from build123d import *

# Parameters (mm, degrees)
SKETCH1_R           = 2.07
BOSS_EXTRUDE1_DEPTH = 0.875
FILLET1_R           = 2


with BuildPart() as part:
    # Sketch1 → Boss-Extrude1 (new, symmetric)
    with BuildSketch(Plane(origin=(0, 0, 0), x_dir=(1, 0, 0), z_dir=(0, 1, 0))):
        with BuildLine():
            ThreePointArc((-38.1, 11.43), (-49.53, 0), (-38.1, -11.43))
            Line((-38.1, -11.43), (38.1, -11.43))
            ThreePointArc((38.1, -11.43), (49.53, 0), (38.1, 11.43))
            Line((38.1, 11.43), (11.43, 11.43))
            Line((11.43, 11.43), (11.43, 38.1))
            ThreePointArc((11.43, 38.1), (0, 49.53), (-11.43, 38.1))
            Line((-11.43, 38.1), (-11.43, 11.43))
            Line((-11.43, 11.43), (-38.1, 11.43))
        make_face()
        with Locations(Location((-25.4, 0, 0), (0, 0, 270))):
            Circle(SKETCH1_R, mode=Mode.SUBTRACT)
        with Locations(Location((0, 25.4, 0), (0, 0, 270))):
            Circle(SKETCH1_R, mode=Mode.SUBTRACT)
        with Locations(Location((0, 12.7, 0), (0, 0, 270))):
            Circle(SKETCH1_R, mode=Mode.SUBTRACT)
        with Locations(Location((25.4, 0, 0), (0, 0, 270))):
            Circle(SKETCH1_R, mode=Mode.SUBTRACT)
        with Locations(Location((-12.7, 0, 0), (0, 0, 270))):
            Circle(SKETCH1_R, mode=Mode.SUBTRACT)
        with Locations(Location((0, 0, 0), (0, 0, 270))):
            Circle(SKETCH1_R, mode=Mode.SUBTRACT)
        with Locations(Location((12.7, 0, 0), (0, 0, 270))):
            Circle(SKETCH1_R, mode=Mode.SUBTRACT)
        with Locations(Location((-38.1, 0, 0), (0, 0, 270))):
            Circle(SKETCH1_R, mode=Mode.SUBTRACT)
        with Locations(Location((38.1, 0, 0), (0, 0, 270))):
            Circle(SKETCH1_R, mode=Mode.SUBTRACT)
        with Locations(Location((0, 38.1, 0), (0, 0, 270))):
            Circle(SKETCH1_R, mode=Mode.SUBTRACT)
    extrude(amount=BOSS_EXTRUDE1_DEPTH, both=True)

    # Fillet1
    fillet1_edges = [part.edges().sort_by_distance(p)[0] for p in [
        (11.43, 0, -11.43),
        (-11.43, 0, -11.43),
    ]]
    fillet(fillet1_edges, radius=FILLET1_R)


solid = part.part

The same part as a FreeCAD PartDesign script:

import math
import FreeCAD as App
import Part
import Sketcher
from FreeCAD import Vector
Q = App.Units.Quantity


def edges_at(feature, points):
    """Names of the edges that pass closest to the given points."""
    edges = feature.Shape.Edges
    near = lambda p: min(range(len(edges)), key=lambda i: edges[i].distToShape(Part.Vertex(*p))[0])
    return sorted({f"Edge{near(p) + 1}" for p in points})

doc = App.newDocument("Part")
body = doc.addObject("PartDesign::Body", "Body")

# Sketch on XZ plane
sketch1 = doc.addObject("Sketcher::SketchObject", "Sketch")
body.addObject(sketch1)
sketch1.AttachmentSupport = (doc.XZ_Plane, [""])
sketch1.MapMode = "FlatFace"
sketch1.addGeometry([
    Part.ArcOfCircle(Part.Circle(Vector(-38.1, 0, 0), Vector(0, 0, 1), 11.4), math.radians(90), math.radians(270)),  # 0
    Part.LineSegment(Vector(-38.1, 11.4, 0), Vector(38.1, 11.4, 0)),  # 1
    Part.ArcOfCircle(Part.Circle(Vector(38.1, 0, 0), Vector(0, 0, 1), 11.4), math.radians(-90), math.radians(90)),  # 2
    Part.LineSegment(Vector(38.1, -11.4, 0), Vector(11.4, -11.4, 0)),  # 3
    Part.LineSegment(Vector(11.4, -11.4, 0), Vector(11.4, -38.1, 0)),  # 4
    Part.ArcOfCircle(Part.Circle(Vector(0, -38.1, 0), Vector(0, 0, 1), 11.4), math.radians(180), math.radians(360)),  # 5
    Part.LineSegment(Vector(-11.4, -38.1, 0), Vector(-11.4, -11.4, 0)),  # 6
    Part.LineSegment(Vector(-11.4, -11.4, 0), Vector(-38.1, -11.4, 0)),  # 7
    Part.Circle(Vector(-38.1, 0, 0), Vector(0, 0, 1), 2.1),  # 8
    Part.Circle(Vector(-25.4, 0, 0), Vector(0, 0, 1), 2.1),  # 9
    Part.Circle(Vector(-12.7, 0, 0), Vector(0, 0, 1), 2.1),  # 10
    Part.Circle(Vector(0, 0, 0), Vector(0, 0, 1), 2.1),  # 11
    Part.Circle(Vector(12.7, 0, 0), Vector(0, 0, 1), 2.1),  # 12
    Part.Circle(Vector(25.4, 0, 0), Vector(0, 0, 1), 2.1),  # 13
    Part.Circle(Vector(38.1, 0, 0), Vector(0, 0, 1), 2.1),  # 14
    Part.Circle(Vector(0, -12.7, 0), Vector(0, 0, 1), 2.1),  # 15
    Part.Circle(Vector(0, -25.4, 0), Vector(0, 0, 1), 2.1),  # 16
    Part.Circle(Vector(0, -38.1, 0), Vector(0, 0, 1), 2.1),  # 17
], False)
sketch1.addConstraint([
    Sketcher.Constraint("Tangent", 0, 1, 1, 1),
    Sketcher.Constraint("Tangent", 1, 2, 2, 2),
    Sketcher.Constraint("Tangent", 2, 1, 3, 1),
    Sketcher.Constraint("Coincident", 3, 2, 4, 1),
    Sketcher.Constraint("Tangent", 4, 2, 5, 2),
    Sketcher.Constraint("Tangent", 5, 1, 6, 1),
    Sketcher.Constraint("Coincident", 6, 2, 7, 1),
    Sketcher.Constraint("Tangent", 7, 2, 0, 2),
    Sketcher.Constraint("Horizontal", 1),
    Sketcher.Constraint("Horizontal", 3),
    Sketcher.Constraint("Vertical", 4),
    Sketcher.Constraint("Vertical", 6),
    Sketcher.Constraint("Horizontal", 7),
    Sketcher.Constraint("Coincident", 11, 3, -1, 1),
    Sketcher.Constraint("Coincident", 8, 3, 0, 3),
    Sketcher.Constraint("Coincident", 14, 3, 2, 3),
    Sketcher.Constraint("Coincident", 17, 3, 5, 3),
    Sketcher.Constraint("Equal", 0, 2),
    Sketcher.Constraint("Equal", 2, 5),
    Sketcher.Constraint("Equal", 8, 9),
    Sketcher.Constraint("Equal", 9, 10),
    Sketcher.Constraint("Equal", 10, 11),
    Sketcher.Constraint("Equal", 11, 12),
    Sketcher.Constraint("Equal", 12, 13),
    Sketcher.Constraint("Equal", 13, 14),
    Sketcher.Constraint("Equal", 14, 15),
    Sketcher.Constraint("Equal", 15, 16),
    Sketcher.Constraint("Equal", 16, 17),
    Sketcher.Constraint("Symmetric", 0, 3, 2, 3, -1, 1),
    Sketcher.Constraint("Symmetric", 10, 3, 12, 3, -1, 1),
    Sketcher.Constraint("Symmetric", 9, 3, 13, 3, -1, 1),
    Sketcher.Constraint("PointOnObject", 5, 3, -2),
    Sketcher.Constraint("PointOnObject", 9, 3, -1),
    Sketcher.Constraint("PointOnObject", 10, 3, -1),
    Sketcher.Constraint("PointOnObject", 15, 3, -2),
    Sketcher.Constraint("PointOnObject", 16, 3, -2),
    Sketcher.Constraint("Equal", 7, 4),
    Sketcher.Constraint("DistanceX", 1, 1, 1, 2, Q("3 in")),
    Sketcher.Constraint("Radius", 0, Q("0.45 in")),
    Sketcher.Constraint("DistanceX", 9, 3, -1, 1, Q("1 in")),
    Sketcher.Constraint("DistanceY", 16, 3, -1, 1, Q("1 in")),
    Sketcher.Constraint("DistanceX", 0, 3, 10, 3, Q("1 in")),
    Sketcher.Constraint("DistanceY", 5, 3, 15, 3, Q("1 in")),
    Sketcher.Constraint("Diameter", 8, Q("4.14 mm")),
])
pad1 = doc.addObject("PartDesign::Pad", "Pad")
body.addObject(pad1)
pad1.Profile = sketch1
pad1.Length = 1.75
pad1.Midplane = True
doc.recompute()

fillet = doc.addObject("PartDesign::Fillet", "Fillet")
body.addObject(fillet)
fillet.Base = (pad1, edges_at(pad1, [(11.43, 0, -11.43), (-11.43, 0, -11.43)]))
fillet.Radius = 2

doc.recompute()
